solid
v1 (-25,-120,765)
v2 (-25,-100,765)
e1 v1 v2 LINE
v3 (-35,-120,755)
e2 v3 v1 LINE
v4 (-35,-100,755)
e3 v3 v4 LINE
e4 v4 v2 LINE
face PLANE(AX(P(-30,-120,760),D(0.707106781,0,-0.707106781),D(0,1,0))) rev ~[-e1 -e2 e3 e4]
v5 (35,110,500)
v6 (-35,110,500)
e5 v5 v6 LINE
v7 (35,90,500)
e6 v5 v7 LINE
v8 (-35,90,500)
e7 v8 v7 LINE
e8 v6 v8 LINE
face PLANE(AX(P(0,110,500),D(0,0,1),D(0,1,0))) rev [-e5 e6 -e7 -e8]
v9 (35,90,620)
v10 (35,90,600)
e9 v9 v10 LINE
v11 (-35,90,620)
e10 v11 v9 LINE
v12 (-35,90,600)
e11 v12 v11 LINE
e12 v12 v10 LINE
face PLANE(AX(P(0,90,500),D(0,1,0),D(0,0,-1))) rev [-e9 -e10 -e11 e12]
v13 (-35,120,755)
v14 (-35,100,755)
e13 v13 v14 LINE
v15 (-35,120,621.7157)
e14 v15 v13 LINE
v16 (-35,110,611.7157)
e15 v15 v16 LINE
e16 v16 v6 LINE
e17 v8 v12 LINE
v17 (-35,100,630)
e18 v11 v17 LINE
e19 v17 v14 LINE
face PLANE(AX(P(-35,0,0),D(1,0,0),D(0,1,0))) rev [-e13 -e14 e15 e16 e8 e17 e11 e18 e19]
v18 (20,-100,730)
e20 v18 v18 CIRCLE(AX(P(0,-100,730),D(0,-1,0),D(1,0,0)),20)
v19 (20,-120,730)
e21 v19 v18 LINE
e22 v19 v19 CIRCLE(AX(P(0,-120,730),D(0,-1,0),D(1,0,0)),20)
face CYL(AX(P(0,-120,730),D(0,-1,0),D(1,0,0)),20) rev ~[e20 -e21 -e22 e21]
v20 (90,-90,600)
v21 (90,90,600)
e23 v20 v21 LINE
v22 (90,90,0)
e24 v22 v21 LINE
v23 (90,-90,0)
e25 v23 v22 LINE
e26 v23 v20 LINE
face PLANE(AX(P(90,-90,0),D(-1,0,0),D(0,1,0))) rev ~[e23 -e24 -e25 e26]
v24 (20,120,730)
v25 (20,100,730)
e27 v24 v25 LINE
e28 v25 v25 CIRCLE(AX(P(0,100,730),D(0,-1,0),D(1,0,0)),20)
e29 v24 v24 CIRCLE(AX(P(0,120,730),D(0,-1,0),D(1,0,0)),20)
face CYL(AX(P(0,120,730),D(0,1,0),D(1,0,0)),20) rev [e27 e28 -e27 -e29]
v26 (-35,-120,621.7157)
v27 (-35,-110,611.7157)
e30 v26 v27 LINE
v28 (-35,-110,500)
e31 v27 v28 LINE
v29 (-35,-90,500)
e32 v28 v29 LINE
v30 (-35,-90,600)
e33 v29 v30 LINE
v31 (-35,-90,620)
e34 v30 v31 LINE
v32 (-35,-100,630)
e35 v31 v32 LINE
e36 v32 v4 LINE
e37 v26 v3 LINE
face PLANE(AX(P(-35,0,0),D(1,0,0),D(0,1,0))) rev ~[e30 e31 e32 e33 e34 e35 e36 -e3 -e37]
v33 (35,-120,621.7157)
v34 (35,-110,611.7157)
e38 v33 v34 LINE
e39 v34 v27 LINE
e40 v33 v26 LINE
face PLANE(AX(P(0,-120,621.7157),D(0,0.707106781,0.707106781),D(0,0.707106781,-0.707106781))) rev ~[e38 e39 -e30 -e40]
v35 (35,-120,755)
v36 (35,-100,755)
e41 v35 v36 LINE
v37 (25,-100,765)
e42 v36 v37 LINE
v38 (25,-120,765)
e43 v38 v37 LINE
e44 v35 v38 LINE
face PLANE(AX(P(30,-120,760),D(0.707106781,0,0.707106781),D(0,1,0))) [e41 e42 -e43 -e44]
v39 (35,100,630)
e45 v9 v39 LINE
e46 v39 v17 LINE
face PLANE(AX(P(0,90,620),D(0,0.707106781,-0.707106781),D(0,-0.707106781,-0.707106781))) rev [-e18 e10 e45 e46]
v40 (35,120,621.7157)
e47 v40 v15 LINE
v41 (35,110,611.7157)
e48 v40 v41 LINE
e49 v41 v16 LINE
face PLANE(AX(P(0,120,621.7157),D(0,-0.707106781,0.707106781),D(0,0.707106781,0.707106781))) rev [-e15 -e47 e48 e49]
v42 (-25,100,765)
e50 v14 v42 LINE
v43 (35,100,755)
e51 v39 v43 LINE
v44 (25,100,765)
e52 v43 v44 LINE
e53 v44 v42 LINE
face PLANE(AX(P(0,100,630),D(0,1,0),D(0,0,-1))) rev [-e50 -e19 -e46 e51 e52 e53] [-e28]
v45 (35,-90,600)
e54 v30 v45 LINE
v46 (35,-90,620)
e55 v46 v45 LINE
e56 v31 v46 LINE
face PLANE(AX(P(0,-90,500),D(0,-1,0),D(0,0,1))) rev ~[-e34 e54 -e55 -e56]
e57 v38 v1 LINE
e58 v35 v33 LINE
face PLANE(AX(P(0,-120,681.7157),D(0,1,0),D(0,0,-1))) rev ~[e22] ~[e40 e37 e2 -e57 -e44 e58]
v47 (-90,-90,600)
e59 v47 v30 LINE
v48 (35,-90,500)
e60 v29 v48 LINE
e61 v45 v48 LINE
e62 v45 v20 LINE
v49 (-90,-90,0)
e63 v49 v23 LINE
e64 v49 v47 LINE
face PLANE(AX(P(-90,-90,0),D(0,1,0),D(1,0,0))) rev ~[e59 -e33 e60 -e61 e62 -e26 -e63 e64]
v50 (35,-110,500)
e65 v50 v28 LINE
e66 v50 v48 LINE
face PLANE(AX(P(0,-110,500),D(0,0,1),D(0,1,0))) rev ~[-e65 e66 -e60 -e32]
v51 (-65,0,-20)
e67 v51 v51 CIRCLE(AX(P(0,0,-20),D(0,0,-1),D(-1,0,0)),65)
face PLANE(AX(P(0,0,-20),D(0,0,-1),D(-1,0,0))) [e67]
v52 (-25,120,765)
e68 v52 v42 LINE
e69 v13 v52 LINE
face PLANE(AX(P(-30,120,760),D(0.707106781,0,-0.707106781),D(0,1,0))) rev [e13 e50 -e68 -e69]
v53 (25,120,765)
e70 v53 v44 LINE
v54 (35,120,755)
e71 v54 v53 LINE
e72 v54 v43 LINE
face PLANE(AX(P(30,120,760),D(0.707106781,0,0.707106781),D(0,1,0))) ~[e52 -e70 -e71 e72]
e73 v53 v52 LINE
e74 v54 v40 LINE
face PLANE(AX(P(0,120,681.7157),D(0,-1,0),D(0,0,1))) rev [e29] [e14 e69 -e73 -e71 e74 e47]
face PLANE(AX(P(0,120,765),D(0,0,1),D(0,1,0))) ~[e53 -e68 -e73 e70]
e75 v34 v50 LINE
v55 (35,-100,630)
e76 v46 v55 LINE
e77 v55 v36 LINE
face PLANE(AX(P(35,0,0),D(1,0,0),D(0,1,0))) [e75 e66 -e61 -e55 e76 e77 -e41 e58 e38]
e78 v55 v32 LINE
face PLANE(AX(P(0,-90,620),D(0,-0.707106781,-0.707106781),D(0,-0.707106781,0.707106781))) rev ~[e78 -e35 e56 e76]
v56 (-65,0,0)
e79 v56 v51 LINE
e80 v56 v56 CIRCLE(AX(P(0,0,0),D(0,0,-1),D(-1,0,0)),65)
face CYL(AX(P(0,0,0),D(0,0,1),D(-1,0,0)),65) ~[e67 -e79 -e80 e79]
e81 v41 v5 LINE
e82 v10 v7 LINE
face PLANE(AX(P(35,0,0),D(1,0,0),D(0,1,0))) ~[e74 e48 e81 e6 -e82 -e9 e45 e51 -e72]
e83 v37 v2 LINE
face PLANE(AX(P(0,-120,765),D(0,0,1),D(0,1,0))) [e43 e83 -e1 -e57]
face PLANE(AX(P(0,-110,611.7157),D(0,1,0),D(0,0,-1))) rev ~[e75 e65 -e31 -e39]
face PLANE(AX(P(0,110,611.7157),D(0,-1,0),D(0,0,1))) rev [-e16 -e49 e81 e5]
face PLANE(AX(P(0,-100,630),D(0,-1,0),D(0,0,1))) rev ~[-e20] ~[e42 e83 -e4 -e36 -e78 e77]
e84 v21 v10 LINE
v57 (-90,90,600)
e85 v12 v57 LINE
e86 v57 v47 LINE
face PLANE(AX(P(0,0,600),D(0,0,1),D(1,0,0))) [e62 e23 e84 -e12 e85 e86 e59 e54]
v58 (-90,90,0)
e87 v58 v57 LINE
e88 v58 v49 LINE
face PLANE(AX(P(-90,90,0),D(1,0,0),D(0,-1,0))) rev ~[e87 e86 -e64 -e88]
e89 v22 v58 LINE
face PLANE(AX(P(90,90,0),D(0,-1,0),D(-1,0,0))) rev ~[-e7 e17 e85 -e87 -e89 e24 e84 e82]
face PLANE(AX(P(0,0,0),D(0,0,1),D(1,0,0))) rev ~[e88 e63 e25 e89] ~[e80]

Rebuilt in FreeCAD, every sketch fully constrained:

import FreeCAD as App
import Part
import Sketcher
Q = App.Units.Quantity


def edges_at(feature, points):
    """Names of the edges that pass closest to the given points."""
    edges = feature.Shape.Edges
    near = lambda p: min(range(len(edges)), key=lambda i: edges[i].distToShape(Part.Vertex(*p))[0])
    return sorted({f"Edge{near(p) + 1}" for p in points})


def add_polygon(sketch, points):
    """Adds a closed chain of lines whose ends are joined by coincident constraints."""
    first, n = sketch.GeometryCount, len(points)
    for a, b in zip(points, points[1:] + points[:1]):
        sketch.addGeometry(Part.LineSegment(App.Vector(*a, 0), App.Vector(*b, 0)), False)
    for i in range(n):
        sketch.addConstraint(Sketcher.Constraint("Coincident", first + i, 2, first + (i + 1) % n, 1))

doc = App.newDocument("Part")
body = doc.addObject("PartDesign::Body", "Body")

sketch1 = doc.addObject("Sketcher::SketchObject", "Sketch")
body.addObject(sketch1)
sketch1.AttachmentSupport = (doc.XY_Plane, [""])
sketch1.MapMode = "FlatFace"
add_polygon(sketch1, [(-90, 90), (-90, -90), (90, -90), (90, 90)])
sketch1.addConstraint(Sketcher.Constraint("Vertical", 0))
sketch1.addConstraint(Sketcher.Constraint("Horizontal", 1))
sketch1.addConstraint(Sketcher.Constraint("Vertical", 2))
sketch1.addConstraint(Sketcher.Constraint("Horizontal", 3))
sketch1.addConstraint(Sketcher.Constraint("Symmetric", 0, 2, 2, 2, -1, 1))
sketch1.addConstraint(Sketcher.Constraint("Equal", 3, 0))
sketch1.addConstraint(Sketcher.Constraint("DistanceX", 1, 1, 1, 2, 180.0))
pad1 = doc.addObject("PartDesign::Pad", "Pad")
body.addObject(pad1)
pad1.Profile = sketch1
pad1.Length = 600

sketch2 = doc.addObject("Sketcher::SketchObject", "Sketch001")
body.addObject(sketch2)
sketch2.AttachmentSupport = (doc.YZ_Plane, [""])
sketch2.MapMode = "FlatFace"
add_polygon(sketch2, [(-110, 500), (-90, 500), (-90, 620), (-100, 630), (-100, 765), (-120, 765), (-120, 622), (-110, 612)])
sketch2.addConstraint(Sketcher.Constraint("Horizontal", 0))
sketch2.addConstraint(Sketcher.Constraint("Vertical", 1))
sketch2.addConstraint(Sketcher.Constraint("Vertical", 3))
sketch2.addConstraint(Sketcher.Constraint("Horizontal", 4))
sketch2.addConstraint(Sketcher.Constraint("Vertical", 5))
sketch2.addConstraint(Sketcher.Constraint("Vertical", 7))
sketch2.addConstraint(Sketcher.Constraint("Parallel", 2, 6))
sketch2.addConstraint(Sketcher.Constraint("Equal", 0, 4))
sketch2.addConstraint(Sketcher.Constraint("DistanceX", 0, 1, 0, 2, 20.0))
sketch2.addConstraint(Sketcher.Constraint("DistanceY", 3, 1, 3, 2, 135.0))
sketch2.addConstraint(Sketcher.Constraint("Angle", 2, Q("135 deg")))
sketch2.addConstraint(Sketcher.Constraint("DistanceX", 2, 2, -1, 1, 100.0))
sketch2.addConstraint(Sketcher.Constraint("DistanceY", 0, 2, 2, 2, 130.0))
sketch2.addConstraint(Sketcher.Constraint("DistanceY", 1, 1, 1, 2, 120.0))
sketch2.addConstraint(Sketcher.Constraint("DistanceY", -1, 1, 0, 2, 500.0))
sketch2.addConstraint(Sketcher.Constraint("DistanceY", 5, 2, 5, 1, 143.2843))
pad2 = doc.addObject("PartDesign::Pad", "Pad001")
body.addObject(pad2)
pad2.Profile = sketch2
pad2.Length = 70
pad2.Midplane = True

sketch3 = doc.addObject("Sketcher::SketchObject", "Sketch002")
body.addObject(sketch3)
sketch3.AttachmentSupport = (doc.XZ_Plane, [""])
sketch3.MapMode = "FlatFace"
sketch3.AttachmentOffset = App.Placement(App.Vector(0, 0, 120), App.Rotation())
sketch3.addGeometry(Part.Circle(App.Vector(0, 730, 0), App.Vector(0, 0, 1), 20), False)
sketch3.addConstraint(Sketcher.Constraint("PointOnObject", 0, 3, -2))
sketch3.addConstraint(Sketcher.Constraint("Diameter", 0, 40.0))
sketch3.addConstraint(Sketcher.Constraint("DistanceY", -1, 1, 0, 3, 730.0))
pocket1 = doc.addObject("PartDesign::Pocket", "Pocket")
body.addObject(pocket1)
pocket1.Profile = sketch3
pocket1.Length = 60
doc.recompute()

chamfer = doc.addObject("PartDesign::Chamfer", "Chamfer")
body.addObject(chamfer)
chamfer.Base = (pocket1, edges_at(pocket1, [(35, -110, 765), (-35, -110, 765)]))
chamfer.Size = 10
doc.recompute()

mirrored = doc.addObject("PartDesign::Mirrored", "Mirrored")
body.addObject(mirrored)
mirrored.TransformMode = "Transform body"
mirrored.MirrorPlane = (doc.XZ_Plane, [""])
body.Tip = mirrored

sketch4 = doc.addObject("Sketcher::SketchObject", "Sketch003")
body.addObject(sketch4)
sketch4.AttachmentSupport = (doc.XY_Plane, [""])
sketch4.MapMode = "FlatFace"
sketch4.addGeometry(Part.Circle(App.Vector(0, 0, 0), App.Vector(0, 0, 1), 65), False)
sketch4.addConstraint(Sketcher.Constraint("Coincident", 0, 3, -1, 1))
sketch4.addConstraint(Sketcher.Constraint("Diameter", 0, 130.0))
pad3 = doc.addObject("PartDesign::Pad", "Pad002")
body.addObject(pad3)
pad3.Profile = sketch4
pad3.Length = 20
pad3.Reversed = True

doc.recompute()
